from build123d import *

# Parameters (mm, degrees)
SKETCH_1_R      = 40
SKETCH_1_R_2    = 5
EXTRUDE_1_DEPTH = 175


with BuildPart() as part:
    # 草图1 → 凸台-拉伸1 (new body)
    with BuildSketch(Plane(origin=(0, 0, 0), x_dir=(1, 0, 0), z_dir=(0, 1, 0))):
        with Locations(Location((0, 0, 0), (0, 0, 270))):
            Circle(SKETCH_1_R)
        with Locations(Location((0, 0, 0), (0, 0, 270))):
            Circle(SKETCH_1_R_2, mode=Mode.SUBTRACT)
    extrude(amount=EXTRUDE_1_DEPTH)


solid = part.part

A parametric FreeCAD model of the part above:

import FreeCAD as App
import Part
import Sketcher

doc = App.newDocument("Part")
params = doc.addObject("Spreadsheet::Sheet", "Params")
for row, (alias, value) in enumerate([
    ("sketch1_diameter", "80 mm"),
    ("sketch1_diameter2", "10 mm"),
    ("pad1_length", "175 mm"),
], start=1):
    params.set(f"A{row}", alias)
    params.set(f"B{row}", "=" + value)
    params.setAlias(f"B{row}", alias)

body = doc.addObject("PartDesign::Body", "Body")

# Sketch on XZ plane
sketch1 = doc.addObject("Sketcher::SketchObject", "Sketch")
body.addObject(sketch1)
sketch1.AttachmentSupport = (doc.XZ_Plane, [""])
sketch1.MapMode = "FlatFace"
sketch1.addGeometry(Part.Circle(App.Vector(0, 0, 0), App.Vector(0, 0, 1), 40), False)
sketch1.addGeometry(Part.Circle(App.Vector(0, 0, 0), App.Vector(0, 0, 1), 5), False)
sketch1.addConstraint(Sketcher.Constraint("Coincident", 0, 3, -1, 1))
sketch1.addConstraint(Sketcher.Constraint("Coincident", 1, 3, -1, 1))
sketch1.addConstraint(Sketcher.Constraint("Diameter", 0, 80.0))
sketch1.addConstraint(Sketcher.Constraint("Diameter", 1, 10.0))
sketch1.setExpression("Constraints[2]", "Params.sketch1_diameter")
sketch1.setExpression("Constraints[3]", "Params.sketch1_diameter2")
pad1 = doc.addObject("PartDesign::Pad", "Pad")
body.addObject(pad1)
pad1.Profile = sketch1
pad1.setExpression("Length", "Params.pad1_length")
pad1.Reversed = True

doc.recompute()
